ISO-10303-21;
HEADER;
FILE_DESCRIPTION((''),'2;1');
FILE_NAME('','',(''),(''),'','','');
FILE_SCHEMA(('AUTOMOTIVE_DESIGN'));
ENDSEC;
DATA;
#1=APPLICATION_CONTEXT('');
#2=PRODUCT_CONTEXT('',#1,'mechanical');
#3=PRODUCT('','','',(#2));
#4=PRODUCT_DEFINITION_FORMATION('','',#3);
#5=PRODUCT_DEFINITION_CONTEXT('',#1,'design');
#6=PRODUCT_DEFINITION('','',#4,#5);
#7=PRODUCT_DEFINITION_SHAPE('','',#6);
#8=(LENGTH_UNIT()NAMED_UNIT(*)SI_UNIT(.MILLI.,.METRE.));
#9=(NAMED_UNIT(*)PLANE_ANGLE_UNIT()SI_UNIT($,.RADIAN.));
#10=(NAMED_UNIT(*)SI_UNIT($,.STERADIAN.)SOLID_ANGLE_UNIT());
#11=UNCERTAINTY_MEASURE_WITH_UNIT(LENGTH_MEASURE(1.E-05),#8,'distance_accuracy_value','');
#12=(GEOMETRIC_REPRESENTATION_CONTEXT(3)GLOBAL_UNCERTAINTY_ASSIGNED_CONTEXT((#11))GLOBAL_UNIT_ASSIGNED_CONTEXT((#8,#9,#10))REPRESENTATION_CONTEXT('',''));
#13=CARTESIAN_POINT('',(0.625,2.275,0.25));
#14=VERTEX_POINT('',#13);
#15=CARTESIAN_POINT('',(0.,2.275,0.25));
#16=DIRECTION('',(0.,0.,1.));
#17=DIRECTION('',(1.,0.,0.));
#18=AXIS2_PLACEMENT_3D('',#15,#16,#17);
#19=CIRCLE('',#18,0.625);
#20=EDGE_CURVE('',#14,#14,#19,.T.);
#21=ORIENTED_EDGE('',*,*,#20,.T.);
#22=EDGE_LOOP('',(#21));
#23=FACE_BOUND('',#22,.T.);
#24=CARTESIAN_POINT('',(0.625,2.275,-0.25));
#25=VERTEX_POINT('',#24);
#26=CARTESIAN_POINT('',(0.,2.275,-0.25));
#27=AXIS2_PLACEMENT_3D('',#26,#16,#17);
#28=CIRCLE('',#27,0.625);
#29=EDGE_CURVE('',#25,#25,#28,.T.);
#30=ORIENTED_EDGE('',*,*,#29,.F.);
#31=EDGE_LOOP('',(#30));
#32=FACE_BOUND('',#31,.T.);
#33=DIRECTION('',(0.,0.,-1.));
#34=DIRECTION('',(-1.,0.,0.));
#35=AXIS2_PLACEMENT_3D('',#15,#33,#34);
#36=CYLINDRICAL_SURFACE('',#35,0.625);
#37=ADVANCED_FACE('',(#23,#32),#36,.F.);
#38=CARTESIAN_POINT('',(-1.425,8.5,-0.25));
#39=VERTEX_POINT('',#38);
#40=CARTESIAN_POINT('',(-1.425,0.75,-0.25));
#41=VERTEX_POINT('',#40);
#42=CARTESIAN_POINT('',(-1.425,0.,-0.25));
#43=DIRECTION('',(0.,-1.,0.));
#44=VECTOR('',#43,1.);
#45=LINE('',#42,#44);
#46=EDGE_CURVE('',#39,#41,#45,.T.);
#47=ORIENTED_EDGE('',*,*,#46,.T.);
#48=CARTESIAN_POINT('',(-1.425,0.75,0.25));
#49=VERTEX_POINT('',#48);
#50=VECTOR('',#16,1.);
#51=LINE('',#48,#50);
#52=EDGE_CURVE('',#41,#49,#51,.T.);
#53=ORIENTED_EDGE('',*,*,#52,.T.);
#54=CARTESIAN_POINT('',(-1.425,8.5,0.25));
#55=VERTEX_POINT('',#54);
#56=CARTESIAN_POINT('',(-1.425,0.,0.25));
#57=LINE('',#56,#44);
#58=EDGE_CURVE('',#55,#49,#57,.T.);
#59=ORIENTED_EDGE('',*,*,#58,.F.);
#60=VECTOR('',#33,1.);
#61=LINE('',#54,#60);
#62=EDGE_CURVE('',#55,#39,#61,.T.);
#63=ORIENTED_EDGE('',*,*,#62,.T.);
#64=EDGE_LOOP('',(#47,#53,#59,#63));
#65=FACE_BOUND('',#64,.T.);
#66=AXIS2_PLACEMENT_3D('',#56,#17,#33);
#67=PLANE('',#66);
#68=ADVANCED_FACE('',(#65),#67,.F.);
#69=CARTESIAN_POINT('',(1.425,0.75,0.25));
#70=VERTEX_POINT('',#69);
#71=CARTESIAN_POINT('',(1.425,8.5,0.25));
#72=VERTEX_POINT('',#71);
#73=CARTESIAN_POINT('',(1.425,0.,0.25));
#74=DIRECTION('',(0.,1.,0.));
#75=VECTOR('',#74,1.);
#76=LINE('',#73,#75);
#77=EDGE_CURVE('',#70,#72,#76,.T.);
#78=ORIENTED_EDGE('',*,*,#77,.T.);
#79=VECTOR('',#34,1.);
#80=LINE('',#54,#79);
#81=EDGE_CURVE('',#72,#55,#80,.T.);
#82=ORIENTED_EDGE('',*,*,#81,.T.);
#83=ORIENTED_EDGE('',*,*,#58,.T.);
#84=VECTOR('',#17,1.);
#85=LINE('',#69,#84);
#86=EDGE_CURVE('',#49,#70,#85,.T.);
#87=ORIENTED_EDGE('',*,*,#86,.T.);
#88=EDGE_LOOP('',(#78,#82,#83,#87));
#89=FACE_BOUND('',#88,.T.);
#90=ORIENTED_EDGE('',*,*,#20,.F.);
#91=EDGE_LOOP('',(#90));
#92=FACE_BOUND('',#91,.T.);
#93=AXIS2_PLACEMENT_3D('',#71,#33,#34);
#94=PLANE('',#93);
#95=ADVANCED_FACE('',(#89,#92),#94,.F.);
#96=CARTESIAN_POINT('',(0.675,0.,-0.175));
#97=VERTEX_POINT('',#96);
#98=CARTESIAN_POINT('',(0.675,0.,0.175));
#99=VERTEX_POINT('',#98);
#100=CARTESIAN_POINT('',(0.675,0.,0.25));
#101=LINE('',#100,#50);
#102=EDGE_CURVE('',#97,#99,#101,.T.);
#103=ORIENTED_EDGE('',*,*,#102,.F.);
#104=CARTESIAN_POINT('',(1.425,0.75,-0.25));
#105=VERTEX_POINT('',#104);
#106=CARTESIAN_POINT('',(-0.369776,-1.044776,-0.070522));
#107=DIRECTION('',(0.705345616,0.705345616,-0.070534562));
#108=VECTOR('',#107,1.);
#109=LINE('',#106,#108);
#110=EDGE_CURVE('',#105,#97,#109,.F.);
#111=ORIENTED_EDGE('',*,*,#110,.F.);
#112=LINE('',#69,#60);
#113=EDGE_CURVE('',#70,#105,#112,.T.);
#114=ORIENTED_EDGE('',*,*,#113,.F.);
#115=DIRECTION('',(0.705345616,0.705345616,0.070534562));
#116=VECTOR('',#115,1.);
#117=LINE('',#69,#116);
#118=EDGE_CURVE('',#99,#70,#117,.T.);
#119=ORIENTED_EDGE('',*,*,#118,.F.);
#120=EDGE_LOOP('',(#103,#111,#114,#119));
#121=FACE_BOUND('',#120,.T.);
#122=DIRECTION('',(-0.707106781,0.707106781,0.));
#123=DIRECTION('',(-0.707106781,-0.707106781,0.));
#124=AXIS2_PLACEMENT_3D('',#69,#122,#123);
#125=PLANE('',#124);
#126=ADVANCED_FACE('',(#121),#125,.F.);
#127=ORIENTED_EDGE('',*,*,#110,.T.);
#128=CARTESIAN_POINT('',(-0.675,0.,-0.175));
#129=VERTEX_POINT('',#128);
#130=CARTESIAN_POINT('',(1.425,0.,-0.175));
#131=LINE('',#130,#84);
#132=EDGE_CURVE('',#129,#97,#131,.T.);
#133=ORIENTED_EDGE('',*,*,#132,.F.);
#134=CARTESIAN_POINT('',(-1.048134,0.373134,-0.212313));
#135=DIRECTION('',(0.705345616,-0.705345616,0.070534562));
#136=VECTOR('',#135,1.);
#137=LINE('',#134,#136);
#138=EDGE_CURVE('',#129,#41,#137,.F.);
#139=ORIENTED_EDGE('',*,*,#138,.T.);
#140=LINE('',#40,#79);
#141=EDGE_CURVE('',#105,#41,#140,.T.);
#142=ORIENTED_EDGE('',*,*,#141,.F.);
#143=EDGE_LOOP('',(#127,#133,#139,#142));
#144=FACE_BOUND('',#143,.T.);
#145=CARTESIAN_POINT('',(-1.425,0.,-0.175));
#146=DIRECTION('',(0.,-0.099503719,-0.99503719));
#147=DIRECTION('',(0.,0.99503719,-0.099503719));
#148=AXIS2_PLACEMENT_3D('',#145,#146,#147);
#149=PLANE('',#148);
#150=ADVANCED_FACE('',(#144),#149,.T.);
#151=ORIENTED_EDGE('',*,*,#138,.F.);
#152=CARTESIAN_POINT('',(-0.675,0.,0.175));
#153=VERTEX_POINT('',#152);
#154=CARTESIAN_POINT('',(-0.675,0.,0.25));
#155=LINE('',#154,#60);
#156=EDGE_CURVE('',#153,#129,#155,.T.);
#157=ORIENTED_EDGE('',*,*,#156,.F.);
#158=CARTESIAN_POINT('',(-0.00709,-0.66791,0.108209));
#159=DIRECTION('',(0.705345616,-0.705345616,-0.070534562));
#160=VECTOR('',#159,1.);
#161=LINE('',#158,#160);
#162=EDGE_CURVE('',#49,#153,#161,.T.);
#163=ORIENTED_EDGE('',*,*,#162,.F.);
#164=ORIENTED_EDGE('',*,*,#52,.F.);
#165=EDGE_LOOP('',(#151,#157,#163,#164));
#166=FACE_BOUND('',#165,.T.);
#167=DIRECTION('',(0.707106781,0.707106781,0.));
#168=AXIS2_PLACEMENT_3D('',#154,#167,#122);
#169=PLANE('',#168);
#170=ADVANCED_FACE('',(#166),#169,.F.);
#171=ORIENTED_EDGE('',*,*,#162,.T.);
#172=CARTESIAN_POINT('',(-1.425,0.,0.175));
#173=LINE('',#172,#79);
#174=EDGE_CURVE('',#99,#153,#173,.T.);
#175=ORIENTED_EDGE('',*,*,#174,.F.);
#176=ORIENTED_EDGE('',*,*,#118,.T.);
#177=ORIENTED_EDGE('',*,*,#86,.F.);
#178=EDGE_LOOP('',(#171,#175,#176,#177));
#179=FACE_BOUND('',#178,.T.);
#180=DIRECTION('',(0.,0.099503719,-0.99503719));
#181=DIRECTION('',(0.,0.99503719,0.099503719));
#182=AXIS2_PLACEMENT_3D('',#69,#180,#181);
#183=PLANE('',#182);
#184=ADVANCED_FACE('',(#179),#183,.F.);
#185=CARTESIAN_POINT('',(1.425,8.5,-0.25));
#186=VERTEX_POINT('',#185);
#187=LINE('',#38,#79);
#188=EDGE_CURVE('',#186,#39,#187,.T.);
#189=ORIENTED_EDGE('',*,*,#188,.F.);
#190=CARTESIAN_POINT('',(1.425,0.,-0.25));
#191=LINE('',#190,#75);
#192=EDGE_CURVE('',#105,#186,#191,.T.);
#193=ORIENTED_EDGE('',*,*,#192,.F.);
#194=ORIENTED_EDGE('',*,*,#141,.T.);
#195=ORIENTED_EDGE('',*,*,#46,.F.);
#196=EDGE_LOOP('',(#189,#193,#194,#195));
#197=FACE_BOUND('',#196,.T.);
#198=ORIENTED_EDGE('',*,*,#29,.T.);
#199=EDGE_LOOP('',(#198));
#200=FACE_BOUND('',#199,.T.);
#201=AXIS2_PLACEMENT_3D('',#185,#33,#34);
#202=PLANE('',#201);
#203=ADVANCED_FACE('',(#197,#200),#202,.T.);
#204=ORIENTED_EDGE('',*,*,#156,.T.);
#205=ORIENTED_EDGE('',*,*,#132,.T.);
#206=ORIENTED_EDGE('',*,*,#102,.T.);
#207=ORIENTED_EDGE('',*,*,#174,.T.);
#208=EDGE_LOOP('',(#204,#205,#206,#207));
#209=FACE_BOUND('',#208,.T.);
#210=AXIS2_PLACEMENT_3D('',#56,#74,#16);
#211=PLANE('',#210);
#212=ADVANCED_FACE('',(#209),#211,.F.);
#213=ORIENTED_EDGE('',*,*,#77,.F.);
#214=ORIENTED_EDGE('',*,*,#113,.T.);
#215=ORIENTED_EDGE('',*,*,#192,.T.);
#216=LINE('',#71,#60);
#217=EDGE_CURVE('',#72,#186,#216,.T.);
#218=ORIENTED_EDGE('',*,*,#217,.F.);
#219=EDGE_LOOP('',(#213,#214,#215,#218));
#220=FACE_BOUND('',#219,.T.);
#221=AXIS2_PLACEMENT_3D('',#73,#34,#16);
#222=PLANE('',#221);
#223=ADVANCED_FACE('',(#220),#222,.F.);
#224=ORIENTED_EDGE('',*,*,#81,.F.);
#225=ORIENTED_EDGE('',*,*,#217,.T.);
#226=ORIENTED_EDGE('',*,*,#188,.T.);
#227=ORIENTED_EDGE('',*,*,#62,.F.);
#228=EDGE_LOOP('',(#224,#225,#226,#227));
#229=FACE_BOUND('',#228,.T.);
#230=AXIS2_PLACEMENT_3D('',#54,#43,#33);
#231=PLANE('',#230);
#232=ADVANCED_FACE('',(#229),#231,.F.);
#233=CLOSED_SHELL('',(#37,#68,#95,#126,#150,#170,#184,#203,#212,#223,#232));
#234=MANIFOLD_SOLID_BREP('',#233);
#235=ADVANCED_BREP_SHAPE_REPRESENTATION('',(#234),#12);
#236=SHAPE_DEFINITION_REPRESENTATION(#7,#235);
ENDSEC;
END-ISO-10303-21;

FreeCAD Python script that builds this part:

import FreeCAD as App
import Part
import Sketcher
from FreeCAD import Vector


def edges_at(feature, points):
    """Names of the edges that pass closest to the given points."""
    edges = feature.Shape.Edges
    near = lambda p: min(range(len(edges)), key=lambda i: edges[i].distToShape(Part.Vertex(*p))[0])
    return sorted({f"Edge{near(p) + 1}" for p in points})


def add_polygon(sketch, points):
    """Adds a closed chain of lines whose ends are joined by coincident constraints."""
    first, n = sketch.GeometryCount, len(points)
    for a, b in zip(points, points[1:] + points[:1]):
        sketch.addGeometry(Part.LineSegment(App.Vector(*a, 0), App.Vector(*b, 0)), False)
    for i in range(n):
        sketch.addConstraint(Sketcher.Constraint("Coincident", first + i, 2, first + (i + 1) % n, 1))

doc = App.newDocument("Part")
body = doc.addObject("PartDesign::Body", "Body")

# Sketch on XY plane
sketch1 = body.newObject("Sketcher::SketchObject", "Sketch")
sketch1.AttachmentSupport = (doc.getObject("XY_Plane"), [""])
sketch1.MapMode = "FlatFace"
add_polygon(sketch1, [(-1.425, 8.5), (-1.425, 0), (1.425, 0), (1.425, 8.5)])  # lines 0-3
sketch1.addGeometry(Part.Circle(Vector(0, 2.275, 0), Vector(0, 0, 1), 0.625), False)  # 4
sketch1.addConstraint([
    Sketcher.Constraint("Vertical", 0),
    Sketcher.Constraint("Horizontal", 1),
    Sketcher.Constraint("Vertical", 2),
    Sketcher.Constraint("Horizontal", 3),
    Sketcher.Constraint("Symmetric", 0, 2, 1, 2, -1, 1),
    Sketcher.Constraint("PointOnObject", 4, 3, -2),
    Sketcher.Constraint("Diameter", 4, 1.25),
    Sketcher.Constraint("DistanceY", 0, 2, 0, 1, 8.5),
    Sketcher.Constraint("DistanceX", 1, 1, 1, 2, 2.85),
    Sketcher.Constraint("DistanceY", -1, 1, 4, 3, 2.275),
])
pad1 = body.newObject("PartDesign::Pad", "Pad")
pad1.Profile = sketch1
pad1.Length = 0.5
pad1.Midplane = True
doc.recompute()

chamfer = body.newObject("PartDesign::Chamfer", "Chamfer")
chamfer.Base = (pad1, edges_at(pad1, [(0, 0, 0.25), (0, 0, -0.25)]))
chamfer.ChamferType = "Two distances"
chamfer.Size = 0.075
chamfer.Size2 = 0.75
doc.recompute()

chamfer2 = body.newObject("PartDesign::Chamfer", "Chamfer001")
chamfer2.Base = (chamfer, edges_at(chamfer, [(1.425, 0, 0), (-1.425, 0, 0)]))
chamfer2.Size = 0.75

doc.recompute()
